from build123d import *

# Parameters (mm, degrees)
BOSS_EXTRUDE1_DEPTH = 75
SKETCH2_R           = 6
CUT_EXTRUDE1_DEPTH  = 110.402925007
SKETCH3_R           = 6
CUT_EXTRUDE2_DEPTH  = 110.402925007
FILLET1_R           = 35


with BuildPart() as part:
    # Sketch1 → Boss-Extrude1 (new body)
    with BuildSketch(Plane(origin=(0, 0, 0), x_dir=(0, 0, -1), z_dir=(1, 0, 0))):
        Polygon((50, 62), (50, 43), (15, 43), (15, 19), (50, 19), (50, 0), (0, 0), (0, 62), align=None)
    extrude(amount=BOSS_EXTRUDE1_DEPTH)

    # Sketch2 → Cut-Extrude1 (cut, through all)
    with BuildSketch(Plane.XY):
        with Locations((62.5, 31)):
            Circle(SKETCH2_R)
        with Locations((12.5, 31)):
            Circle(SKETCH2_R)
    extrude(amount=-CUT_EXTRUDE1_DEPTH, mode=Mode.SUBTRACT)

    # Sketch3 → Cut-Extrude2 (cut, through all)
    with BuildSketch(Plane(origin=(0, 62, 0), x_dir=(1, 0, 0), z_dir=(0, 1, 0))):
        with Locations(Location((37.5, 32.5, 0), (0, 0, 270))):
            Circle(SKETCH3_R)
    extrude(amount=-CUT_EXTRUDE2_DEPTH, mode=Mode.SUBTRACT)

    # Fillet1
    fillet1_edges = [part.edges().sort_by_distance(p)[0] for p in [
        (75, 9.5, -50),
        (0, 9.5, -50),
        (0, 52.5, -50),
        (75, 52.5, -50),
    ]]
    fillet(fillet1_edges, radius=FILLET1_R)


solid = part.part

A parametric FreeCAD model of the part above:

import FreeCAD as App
import Part
import Sketcher
Q = App.Units.Quantity


def edges_at(feature, points):
    """Names of the edges that pass closest to the given points."""
    edges = feature.Shape.Edges
    near = lambda p: min(range(len(edges)), key=lambda i: edges[i].distToShape(Part.Vertex(*p))[0])
    return sorted({f"Edge{near(p) + 1}" for p in points})


def add_polygon(sketch, points):
    """Adds a closed chain of lines whose ends are joined by coincident constraints."""
    first, n = sketch.GeometryCount, len(points)
    for a, b in zip(points, points[1:] + points[:1]):
        sketch.addGeometry(Part.LineSegment(App.Vector(*a, 0), App.Vector(*b, 0)), False)
    for i in range(n):
        sketch.addConstraint(Sketcher.Constraint("Coincident", first + i, 2, first + (i + 1) % n, 1))

doc = App.newDocument("Part")
body = doc.addObject("PartDesign::Body", "Body")

# Sketch on YZ plane
sketch1 = body.newObject("Sketcher::SketchObject", "Sketch")
sketch1.AttachmentSupport = (doc.getObject("YZ_Plane"), [""])
sketch1.MapMode = "FlatFace"
add_polygon(sketch1, [(43, -50), (62, -50), (62, 0), (0, 0), (0, -50), (19, -50), (19, -15), (43, -15)])  # lines 0-7
sketch1.addConstraint(Sketcher.Constraint("Horizontal", 0))
sketch1.addConstraint(Sketcher.Constraint("Vertical", 1))
sketch1.addConstraint(Sketcher.Constraint("Horizontal", 2))
sketch1.addConstraint(Sketcher.Constraint("Vertical", 3))
sketch1.addConstraint(Sketcher.Constraint("Horizontal", 4))
sketch1.addConstraint(Sketcher.Constraint("Vertical", 5))
sketch1.addConstraint(Sketcher.Constraint("Horizontal", 6))
sketch1.addConstraint(Sketcher.Constraint("Vertical", 7))
sketch1.addConstraint(Sketcher.Constraint("Coincident", 2, 2, -1, 1))
sketch1.addConstraint(Sketcher.Constraint("Horizontal", 0, 2, 3, 2))
sketch1.addConstraint(Sketcher.Constraint("Equal", 0, 4))
sketch1.addConstraint(Sketcher.Constraint("DistanceX", 0, 1, 0, 2, Q("19 mm")))
sketch1.addConstraint(Sketcher.Constraint("DistanceX", 2, 2, 2, 1, Q("62 mm")))
sketch1.addConstraint(Sketcher.Constraint("DistanceY", 1, 1, 1, 2, Q("50 mm")))
sketch1.addConstraint(Sketcher.Constraint("DistanceY", 5, 1, 5, 2, Q("35 mm")))
pad1 = body.newObject("PartDesign::Pad", "Pad")
pad1.Profile = sketch1
pad1.Length = 75

# Sketch on XY plane
sketch2 = body.newObject("Sketcher::SketchObject", "Sketch001")
sketch2.AttachmentSupport = (doc.getObject("XY_Plane"), [""])
sketch2.MapMode = "FlatFace"
sketch2.addGeometry(Part.Circle(App.Vector(62, 31, 0), App.Vector(0, 0, 1), 6), False)
sketch2.addGeometry(Part.Circle(App.Vector(12, 31, 0), App.Vector(0, 0, 1), 6), False)
sketch2.addConstraint(Sketcher.Constraint("Equal", 0, 1))
sketch2.addConstraint(Sketcher.Constraint("Horizontal", 0, 3, 1, 3))
sketch2.addConstraint(Sketcher.Constraint("Diameter", 0, Q("12 mm")))
sketch2.addConstraint(Sketcher.Constraint("DistanceY", -1, 1, 0, 3, Q("31 mm")))
sketch2.addConstraint(Sketcher.Constraint("DistanceX", 1, 3, 0, 3, Q("50 mm")))
sketch2.addConstraint(Sketcher.Constraint("DistanceX", -1, 1, 0, 3, Q("62.5 mm")))
pocket1 = body.newObject("PartDesign::Pocket", "Pocket")
pocket1.Profile = sketch2
pocket1.Type = "ThroughAll"

# Sketch on XZ plane
sketch3 = body.newObject("Sketcher::SketchObject", "Sketch002")
sketch3.AttachmentSupport = (doc.getObject("XZ_Plane"), [""])
sketch3.MapMode = "FlatFace"
sketch3.AttachmentOffset = App.Placement(App.Vector(0, 0, -62), App.Rotation())
sketch3.addGeometry(Part.Circle(App.Vector(38, -32, 0), App.Vector(0, 0, 1), 6), False)
sketch3.addConstraint(Sketcher.Constraint("Diameter", 0, Q("12 mm")))
sketch3.addConstraint(Sketcher.Constraint("DistanceX", -1, 1, 0, 3, Q("37.5 mm")))
sketch3.addConstraint(Sketcher.Constraint("DistanceY", 0, 3, -1, 1, Q("32.5 mm")))
pocket2 = body.newObject("PartDesign::Pocket", "Pocket001")
pocket2.Profile = sketch3
pocket2.Type = "ThroughAll"
pocket2.Reversed = True
doc.recompute()

fillet = body.newObject("PartDesign::Fillet", "Fillet")
fillet.Base = (pocket2, edges_at(pocket2, [
    (75, 9.5, -50),
    (0, 9.5, -50),
    (0, 52.5, -50),
    (75, 52.5, -50),
]))
fillet.Radius = 35

doc.recompute()
